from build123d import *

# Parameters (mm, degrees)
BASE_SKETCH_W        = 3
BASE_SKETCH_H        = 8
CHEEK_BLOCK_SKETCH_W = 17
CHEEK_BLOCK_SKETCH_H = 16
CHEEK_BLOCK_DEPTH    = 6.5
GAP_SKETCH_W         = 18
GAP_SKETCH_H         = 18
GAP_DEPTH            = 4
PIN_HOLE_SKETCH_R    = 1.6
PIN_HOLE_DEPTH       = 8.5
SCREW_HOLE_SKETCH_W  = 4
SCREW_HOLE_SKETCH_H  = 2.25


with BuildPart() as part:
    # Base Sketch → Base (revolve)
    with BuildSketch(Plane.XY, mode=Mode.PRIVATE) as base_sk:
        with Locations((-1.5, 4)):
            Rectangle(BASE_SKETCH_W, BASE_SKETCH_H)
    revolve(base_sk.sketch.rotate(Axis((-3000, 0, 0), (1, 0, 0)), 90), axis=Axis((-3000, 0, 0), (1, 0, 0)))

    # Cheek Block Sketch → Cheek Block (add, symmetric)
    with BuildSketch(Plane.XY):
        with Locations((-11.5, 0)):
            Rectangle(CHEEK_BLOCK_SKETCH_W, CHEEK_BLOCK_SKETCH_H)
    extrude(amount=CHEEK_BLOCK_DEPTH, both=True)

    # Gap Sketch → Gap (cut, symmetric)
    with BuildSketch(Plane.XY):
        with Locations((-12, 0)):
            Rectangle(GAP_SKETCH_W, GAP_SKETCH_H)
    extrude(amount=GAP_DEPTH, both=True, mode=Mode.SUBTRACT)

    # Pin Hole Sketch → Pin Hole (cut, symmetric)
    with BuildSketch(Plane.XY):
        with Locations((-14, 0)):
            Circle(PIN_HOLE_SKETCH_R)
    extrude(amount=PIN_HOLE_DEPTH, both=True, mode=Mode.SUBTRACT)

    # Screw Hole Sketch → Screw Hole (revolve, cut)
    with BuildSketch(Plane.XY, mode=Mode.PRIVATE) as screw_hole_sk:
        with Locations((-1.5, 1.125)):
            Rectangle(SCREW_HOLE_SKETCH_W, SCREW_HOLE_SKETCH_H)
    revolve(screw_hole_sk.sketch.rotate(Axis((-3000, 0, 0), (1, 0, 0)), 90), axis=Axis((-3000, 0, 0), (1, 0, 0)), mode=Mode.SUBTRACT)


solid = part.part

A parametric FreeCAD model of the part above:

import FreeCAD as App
import Part
import Sketcher

doc = App.newDocument("Part")
body = doc.addObject("PartDesign::Body", "Body")

# Sketch on XY plane
sketch1 = body.newObject("Sketcher::SketchObject", "Sketch")
sketch1.AttachmentSupport = (doc.getObject("XY_Plane"), [""])
sketch1.MapMode = "FlatFace"
sketch1.addGeometry([
    Part.LineSegment(App.Vector(-3, 8, 0), App.Vector(-3, 0, 0)),
    Part.LineSegment(App.Vector(-3, 0, 0), App.Vector(0, 0, 0)),
    Part.LineSegment(App.Vector(0, 0, 0), App.Vector(0, 8, 0)),
    Part.LineSegment(App.Vector(0, 8, 0), App.Vector(-3, 8, 0)),
], False)
sketch1.addConstraint([
    Sketcher.Constraint("Coincident", 0, 2, 1, 1),
    Sketcher.Constraint("Coincident", 1, 2, 2, 1),
    Sketcher.Constraint("Coincident", 2, 2, 3, 1),
    Sketcher.Constraint("Coincident", 3, 2, 0, 1),
    Sketcher.Constraint("Vertical", 0),
    Sketcher.Constraint("Horizontal", 1),
    Sketcher.Constraint("Vertical", 2),
    Sketcher.Constraint("Horizontal", 3),
    Sketcher.Constraint("Coincident", 1, 2, -1, 1),
    Sketcher.Constraint("DistanceX", 1, 1, 1, 2, 3.0),
    Sketcher.Constraint("DistanceY", 0, 2, 0, 1, 8.0),
])
revolution = body.newObject("PartDesign::Revolution", "Revolution")
revolution.Profile = sketch1
revolution.ReferenceAxis = (sketch1, ["H_Axis"])
revolution.Angle = 360

# Sketch on XY plane
sketch2 = body.newObject("Sketcher::SketchObject", "Sketch001")
sketch2.AttachmentSupport = (doc.getObject("XY_Plane"), [""])
sketch2.MapMode = "FlatFace"
sketch2.addGeometry([
    Part.LineSegment(App.Vector(-20, 8, 0), App.Vector(-20, -8, 0)),
    Part.LineSegment(App.Vector(-20, -8, 0), App.Vector(-3, -8, 0)),
    Part.LineSegment(App.Vector(-3, -8, 0), App.Vector(-3, 8, 0)),
    Part.LineSegment(App.Vector(-3, 8, 0), App.Vector(-20, 8, 0)),
], False)
sketch2.addConstraint([
    Sketcher.Constraint("Coincident", 0, 2, 1, 1),
    Sketcher.Constraint("Coincident", 1, 2, 2, 1),
    Sketcher.Constraint("Coincident", 2, 2, 3, 1),
    Sketcher.Constraint("Coincident", 3, 2, 0, 1),
    Sketcher.Constraint("Vertical", 0),
    Sketcher.Constraint("Horizontal", 1),
    Sketcher.Constraint("Vertical", 2),
    Sketcher.Constraint("Horizontal", 3),
    Sketcher.Constraint("DistanceX", 1, 1, 1, 2, 17.0),
    Sketcher.Constraint("DistanceY", 0, 2, 0, 1, 16.0),
    Sketcher.Constraint("DistanceX", 0, 2, -1, 1, 20.0),
    Sketcher.Constraint("DistanceY", 0, 2, -1, 1, 8.0),
])
pad1 = body.newObject("PartDesign::Pad", "Pad")
pad1.Profile = sketch2
pad1.Length = 13
pad1.Midplane = True

# Sketch on XY plane
sketch3 = body.newObject("Sketcher::SketchObject", "Sketch002")
sketch3.AttachmentSupport = (doc.getObject("XY_Plane"), [""])
sketch3.MapMode = "FlatFace"
sketch3.addGeometry([
    Part.LineSegment(App.Vector(-21, 9, 0), App.Vector(-21, -9, 0)),
    Part.LineSegment(App.Vector(-21, -9, 0), App.Vector(-3, -9, 0)),
    Part.LineSegment(App.Vector(-3, -9, 0), App.Vector(-3, 9, 0)),
    Part.LineSegment(App.Vector(-3, 9, 0), App.Vector(-21, 9, 0)),
], False)
sketch3.addConstraint([
    Sketcher.Constraint("Coincident", 0, 2, 1, 1),
    Sketcher.Constraint("Coincident", 1, 2, 2, 1),
    Sketcher.Constraint("Coincident", 2, 2, 3, 1),
    Sketcher.Constraint("Coincident", 3, 2, 0, 1),
    Sketcher.Constraint("Vertical", 0),
    Sketcher.Constraint("Horizontal", 1),
    Sketcher.Constraint("Vertical", 2),
    Sketcher.Constraint("Horizontal", 3),
    Sketcher.Constraint("Equal", 3, 0),
    Sketcher.Constraint("DistanceX", 1, 1, 1, 2, 18.0),
    Sketcher.Constraint("DistanceX", 0, 2, -1, 1, 21.0),
    Sketcher.Constraint("DistanceY", 0, 2, -1, 1, 9.0),
])
pocket1 = body.newObject("PartDesign::Pocket", "Pocket")
pocket1.Profile = sketch3
pocket1.Length = 8
pocket1.Midplane = True

# Sketch on XY plane
sketch4 = body.newObject("Sketcher::SketchObject", "Sketch003")
sketch4.AttachmentSupport = (doc.getObject("XY_Plane"), [""])
sketch4.MapMode = "FlatFace"
sketch4.addGeometry(Part.Circle(App.Vector(-14, 0, 0), App.Vector(0, 0, 1), 1.6), False)
sketch4.addConstraint([
    Sketcher.Constraint("PointOnObject", 0, 3, -1),
    Sketcher.Constraint("Diameter", 0, 3.2),
    Sketcher.Constraint("DistanceX", 0, 3, -1, 1, 14.0),
])
pocket2 = body.newObject("PartDesign::Pocket", "Pocket001")
pocket2.Profile = sketch4
pocket2.Length = 17
pocket2.Midplane = True

# Sketch on XY plane
sketch5 = body.newObject("Sketcher::SketchObject", "Sketch004")
sketch5.AttachmentSupport = (doc.getObject("XY_Plane"), [""])
sketch5.MapMode = "FlatFace"
sketch5.addGeometry([
    Part.LineSegment(App.Vector(-3.5, 2.2, 0), App.Vector(-3.5, 0, 0)),
    Part.LineSegment(App.Vector(-3.5, 0, 0), App.Vector(0.5, 0, 0)),
    Part.LineSegment(App.Vector(0.5, 0, 0), App.Vector(0.5, 2.2, 0)),
    Part.LineSegment(App.Vector(0.5, 2.2, 0), App.Vector(-3.5, 2.2, 0)),
], False)
sketch5.addConstraint([
    Sketcher.Constraint("Coincident", 0, 2, 1, 1),
    Sketcher.Constraint("Coincident", 1, 2, 2, 1),
    Sketcher.Constraint("Coincident", 2, 2, 3, 1),
    Sketcher.Constraint("Coincident", 3, 2, 0, 1),
    Sketcher.Constraint("Vertical", 0),
    Sketcher.Constraint("Horizontal", 1),
    Sketcher.Constraint("Vertical", 2),
    Sketcher.Constraint("Horizontal", 3),
    Sketcher.Constraint("PointOnObject", 0, 2, -1),
    Sketcher.Constraint("DistanceX", 1, 1, 1, 2, 4.0),
    Sketcher.Constraint("DistanceY", 0, 2, 0, 1, 2.25),
    Sketcher.Constraint("DistanceX", 0, 2, -1, 1, 3.5),
])
groove = body.newObject("PartDesign::Groove", "Groove")
groove.Profile = sketch5
groove.ReferenceAxis = (sketch5, ["H_Axis"])
groove.Angle = 360

doc.recompute()
